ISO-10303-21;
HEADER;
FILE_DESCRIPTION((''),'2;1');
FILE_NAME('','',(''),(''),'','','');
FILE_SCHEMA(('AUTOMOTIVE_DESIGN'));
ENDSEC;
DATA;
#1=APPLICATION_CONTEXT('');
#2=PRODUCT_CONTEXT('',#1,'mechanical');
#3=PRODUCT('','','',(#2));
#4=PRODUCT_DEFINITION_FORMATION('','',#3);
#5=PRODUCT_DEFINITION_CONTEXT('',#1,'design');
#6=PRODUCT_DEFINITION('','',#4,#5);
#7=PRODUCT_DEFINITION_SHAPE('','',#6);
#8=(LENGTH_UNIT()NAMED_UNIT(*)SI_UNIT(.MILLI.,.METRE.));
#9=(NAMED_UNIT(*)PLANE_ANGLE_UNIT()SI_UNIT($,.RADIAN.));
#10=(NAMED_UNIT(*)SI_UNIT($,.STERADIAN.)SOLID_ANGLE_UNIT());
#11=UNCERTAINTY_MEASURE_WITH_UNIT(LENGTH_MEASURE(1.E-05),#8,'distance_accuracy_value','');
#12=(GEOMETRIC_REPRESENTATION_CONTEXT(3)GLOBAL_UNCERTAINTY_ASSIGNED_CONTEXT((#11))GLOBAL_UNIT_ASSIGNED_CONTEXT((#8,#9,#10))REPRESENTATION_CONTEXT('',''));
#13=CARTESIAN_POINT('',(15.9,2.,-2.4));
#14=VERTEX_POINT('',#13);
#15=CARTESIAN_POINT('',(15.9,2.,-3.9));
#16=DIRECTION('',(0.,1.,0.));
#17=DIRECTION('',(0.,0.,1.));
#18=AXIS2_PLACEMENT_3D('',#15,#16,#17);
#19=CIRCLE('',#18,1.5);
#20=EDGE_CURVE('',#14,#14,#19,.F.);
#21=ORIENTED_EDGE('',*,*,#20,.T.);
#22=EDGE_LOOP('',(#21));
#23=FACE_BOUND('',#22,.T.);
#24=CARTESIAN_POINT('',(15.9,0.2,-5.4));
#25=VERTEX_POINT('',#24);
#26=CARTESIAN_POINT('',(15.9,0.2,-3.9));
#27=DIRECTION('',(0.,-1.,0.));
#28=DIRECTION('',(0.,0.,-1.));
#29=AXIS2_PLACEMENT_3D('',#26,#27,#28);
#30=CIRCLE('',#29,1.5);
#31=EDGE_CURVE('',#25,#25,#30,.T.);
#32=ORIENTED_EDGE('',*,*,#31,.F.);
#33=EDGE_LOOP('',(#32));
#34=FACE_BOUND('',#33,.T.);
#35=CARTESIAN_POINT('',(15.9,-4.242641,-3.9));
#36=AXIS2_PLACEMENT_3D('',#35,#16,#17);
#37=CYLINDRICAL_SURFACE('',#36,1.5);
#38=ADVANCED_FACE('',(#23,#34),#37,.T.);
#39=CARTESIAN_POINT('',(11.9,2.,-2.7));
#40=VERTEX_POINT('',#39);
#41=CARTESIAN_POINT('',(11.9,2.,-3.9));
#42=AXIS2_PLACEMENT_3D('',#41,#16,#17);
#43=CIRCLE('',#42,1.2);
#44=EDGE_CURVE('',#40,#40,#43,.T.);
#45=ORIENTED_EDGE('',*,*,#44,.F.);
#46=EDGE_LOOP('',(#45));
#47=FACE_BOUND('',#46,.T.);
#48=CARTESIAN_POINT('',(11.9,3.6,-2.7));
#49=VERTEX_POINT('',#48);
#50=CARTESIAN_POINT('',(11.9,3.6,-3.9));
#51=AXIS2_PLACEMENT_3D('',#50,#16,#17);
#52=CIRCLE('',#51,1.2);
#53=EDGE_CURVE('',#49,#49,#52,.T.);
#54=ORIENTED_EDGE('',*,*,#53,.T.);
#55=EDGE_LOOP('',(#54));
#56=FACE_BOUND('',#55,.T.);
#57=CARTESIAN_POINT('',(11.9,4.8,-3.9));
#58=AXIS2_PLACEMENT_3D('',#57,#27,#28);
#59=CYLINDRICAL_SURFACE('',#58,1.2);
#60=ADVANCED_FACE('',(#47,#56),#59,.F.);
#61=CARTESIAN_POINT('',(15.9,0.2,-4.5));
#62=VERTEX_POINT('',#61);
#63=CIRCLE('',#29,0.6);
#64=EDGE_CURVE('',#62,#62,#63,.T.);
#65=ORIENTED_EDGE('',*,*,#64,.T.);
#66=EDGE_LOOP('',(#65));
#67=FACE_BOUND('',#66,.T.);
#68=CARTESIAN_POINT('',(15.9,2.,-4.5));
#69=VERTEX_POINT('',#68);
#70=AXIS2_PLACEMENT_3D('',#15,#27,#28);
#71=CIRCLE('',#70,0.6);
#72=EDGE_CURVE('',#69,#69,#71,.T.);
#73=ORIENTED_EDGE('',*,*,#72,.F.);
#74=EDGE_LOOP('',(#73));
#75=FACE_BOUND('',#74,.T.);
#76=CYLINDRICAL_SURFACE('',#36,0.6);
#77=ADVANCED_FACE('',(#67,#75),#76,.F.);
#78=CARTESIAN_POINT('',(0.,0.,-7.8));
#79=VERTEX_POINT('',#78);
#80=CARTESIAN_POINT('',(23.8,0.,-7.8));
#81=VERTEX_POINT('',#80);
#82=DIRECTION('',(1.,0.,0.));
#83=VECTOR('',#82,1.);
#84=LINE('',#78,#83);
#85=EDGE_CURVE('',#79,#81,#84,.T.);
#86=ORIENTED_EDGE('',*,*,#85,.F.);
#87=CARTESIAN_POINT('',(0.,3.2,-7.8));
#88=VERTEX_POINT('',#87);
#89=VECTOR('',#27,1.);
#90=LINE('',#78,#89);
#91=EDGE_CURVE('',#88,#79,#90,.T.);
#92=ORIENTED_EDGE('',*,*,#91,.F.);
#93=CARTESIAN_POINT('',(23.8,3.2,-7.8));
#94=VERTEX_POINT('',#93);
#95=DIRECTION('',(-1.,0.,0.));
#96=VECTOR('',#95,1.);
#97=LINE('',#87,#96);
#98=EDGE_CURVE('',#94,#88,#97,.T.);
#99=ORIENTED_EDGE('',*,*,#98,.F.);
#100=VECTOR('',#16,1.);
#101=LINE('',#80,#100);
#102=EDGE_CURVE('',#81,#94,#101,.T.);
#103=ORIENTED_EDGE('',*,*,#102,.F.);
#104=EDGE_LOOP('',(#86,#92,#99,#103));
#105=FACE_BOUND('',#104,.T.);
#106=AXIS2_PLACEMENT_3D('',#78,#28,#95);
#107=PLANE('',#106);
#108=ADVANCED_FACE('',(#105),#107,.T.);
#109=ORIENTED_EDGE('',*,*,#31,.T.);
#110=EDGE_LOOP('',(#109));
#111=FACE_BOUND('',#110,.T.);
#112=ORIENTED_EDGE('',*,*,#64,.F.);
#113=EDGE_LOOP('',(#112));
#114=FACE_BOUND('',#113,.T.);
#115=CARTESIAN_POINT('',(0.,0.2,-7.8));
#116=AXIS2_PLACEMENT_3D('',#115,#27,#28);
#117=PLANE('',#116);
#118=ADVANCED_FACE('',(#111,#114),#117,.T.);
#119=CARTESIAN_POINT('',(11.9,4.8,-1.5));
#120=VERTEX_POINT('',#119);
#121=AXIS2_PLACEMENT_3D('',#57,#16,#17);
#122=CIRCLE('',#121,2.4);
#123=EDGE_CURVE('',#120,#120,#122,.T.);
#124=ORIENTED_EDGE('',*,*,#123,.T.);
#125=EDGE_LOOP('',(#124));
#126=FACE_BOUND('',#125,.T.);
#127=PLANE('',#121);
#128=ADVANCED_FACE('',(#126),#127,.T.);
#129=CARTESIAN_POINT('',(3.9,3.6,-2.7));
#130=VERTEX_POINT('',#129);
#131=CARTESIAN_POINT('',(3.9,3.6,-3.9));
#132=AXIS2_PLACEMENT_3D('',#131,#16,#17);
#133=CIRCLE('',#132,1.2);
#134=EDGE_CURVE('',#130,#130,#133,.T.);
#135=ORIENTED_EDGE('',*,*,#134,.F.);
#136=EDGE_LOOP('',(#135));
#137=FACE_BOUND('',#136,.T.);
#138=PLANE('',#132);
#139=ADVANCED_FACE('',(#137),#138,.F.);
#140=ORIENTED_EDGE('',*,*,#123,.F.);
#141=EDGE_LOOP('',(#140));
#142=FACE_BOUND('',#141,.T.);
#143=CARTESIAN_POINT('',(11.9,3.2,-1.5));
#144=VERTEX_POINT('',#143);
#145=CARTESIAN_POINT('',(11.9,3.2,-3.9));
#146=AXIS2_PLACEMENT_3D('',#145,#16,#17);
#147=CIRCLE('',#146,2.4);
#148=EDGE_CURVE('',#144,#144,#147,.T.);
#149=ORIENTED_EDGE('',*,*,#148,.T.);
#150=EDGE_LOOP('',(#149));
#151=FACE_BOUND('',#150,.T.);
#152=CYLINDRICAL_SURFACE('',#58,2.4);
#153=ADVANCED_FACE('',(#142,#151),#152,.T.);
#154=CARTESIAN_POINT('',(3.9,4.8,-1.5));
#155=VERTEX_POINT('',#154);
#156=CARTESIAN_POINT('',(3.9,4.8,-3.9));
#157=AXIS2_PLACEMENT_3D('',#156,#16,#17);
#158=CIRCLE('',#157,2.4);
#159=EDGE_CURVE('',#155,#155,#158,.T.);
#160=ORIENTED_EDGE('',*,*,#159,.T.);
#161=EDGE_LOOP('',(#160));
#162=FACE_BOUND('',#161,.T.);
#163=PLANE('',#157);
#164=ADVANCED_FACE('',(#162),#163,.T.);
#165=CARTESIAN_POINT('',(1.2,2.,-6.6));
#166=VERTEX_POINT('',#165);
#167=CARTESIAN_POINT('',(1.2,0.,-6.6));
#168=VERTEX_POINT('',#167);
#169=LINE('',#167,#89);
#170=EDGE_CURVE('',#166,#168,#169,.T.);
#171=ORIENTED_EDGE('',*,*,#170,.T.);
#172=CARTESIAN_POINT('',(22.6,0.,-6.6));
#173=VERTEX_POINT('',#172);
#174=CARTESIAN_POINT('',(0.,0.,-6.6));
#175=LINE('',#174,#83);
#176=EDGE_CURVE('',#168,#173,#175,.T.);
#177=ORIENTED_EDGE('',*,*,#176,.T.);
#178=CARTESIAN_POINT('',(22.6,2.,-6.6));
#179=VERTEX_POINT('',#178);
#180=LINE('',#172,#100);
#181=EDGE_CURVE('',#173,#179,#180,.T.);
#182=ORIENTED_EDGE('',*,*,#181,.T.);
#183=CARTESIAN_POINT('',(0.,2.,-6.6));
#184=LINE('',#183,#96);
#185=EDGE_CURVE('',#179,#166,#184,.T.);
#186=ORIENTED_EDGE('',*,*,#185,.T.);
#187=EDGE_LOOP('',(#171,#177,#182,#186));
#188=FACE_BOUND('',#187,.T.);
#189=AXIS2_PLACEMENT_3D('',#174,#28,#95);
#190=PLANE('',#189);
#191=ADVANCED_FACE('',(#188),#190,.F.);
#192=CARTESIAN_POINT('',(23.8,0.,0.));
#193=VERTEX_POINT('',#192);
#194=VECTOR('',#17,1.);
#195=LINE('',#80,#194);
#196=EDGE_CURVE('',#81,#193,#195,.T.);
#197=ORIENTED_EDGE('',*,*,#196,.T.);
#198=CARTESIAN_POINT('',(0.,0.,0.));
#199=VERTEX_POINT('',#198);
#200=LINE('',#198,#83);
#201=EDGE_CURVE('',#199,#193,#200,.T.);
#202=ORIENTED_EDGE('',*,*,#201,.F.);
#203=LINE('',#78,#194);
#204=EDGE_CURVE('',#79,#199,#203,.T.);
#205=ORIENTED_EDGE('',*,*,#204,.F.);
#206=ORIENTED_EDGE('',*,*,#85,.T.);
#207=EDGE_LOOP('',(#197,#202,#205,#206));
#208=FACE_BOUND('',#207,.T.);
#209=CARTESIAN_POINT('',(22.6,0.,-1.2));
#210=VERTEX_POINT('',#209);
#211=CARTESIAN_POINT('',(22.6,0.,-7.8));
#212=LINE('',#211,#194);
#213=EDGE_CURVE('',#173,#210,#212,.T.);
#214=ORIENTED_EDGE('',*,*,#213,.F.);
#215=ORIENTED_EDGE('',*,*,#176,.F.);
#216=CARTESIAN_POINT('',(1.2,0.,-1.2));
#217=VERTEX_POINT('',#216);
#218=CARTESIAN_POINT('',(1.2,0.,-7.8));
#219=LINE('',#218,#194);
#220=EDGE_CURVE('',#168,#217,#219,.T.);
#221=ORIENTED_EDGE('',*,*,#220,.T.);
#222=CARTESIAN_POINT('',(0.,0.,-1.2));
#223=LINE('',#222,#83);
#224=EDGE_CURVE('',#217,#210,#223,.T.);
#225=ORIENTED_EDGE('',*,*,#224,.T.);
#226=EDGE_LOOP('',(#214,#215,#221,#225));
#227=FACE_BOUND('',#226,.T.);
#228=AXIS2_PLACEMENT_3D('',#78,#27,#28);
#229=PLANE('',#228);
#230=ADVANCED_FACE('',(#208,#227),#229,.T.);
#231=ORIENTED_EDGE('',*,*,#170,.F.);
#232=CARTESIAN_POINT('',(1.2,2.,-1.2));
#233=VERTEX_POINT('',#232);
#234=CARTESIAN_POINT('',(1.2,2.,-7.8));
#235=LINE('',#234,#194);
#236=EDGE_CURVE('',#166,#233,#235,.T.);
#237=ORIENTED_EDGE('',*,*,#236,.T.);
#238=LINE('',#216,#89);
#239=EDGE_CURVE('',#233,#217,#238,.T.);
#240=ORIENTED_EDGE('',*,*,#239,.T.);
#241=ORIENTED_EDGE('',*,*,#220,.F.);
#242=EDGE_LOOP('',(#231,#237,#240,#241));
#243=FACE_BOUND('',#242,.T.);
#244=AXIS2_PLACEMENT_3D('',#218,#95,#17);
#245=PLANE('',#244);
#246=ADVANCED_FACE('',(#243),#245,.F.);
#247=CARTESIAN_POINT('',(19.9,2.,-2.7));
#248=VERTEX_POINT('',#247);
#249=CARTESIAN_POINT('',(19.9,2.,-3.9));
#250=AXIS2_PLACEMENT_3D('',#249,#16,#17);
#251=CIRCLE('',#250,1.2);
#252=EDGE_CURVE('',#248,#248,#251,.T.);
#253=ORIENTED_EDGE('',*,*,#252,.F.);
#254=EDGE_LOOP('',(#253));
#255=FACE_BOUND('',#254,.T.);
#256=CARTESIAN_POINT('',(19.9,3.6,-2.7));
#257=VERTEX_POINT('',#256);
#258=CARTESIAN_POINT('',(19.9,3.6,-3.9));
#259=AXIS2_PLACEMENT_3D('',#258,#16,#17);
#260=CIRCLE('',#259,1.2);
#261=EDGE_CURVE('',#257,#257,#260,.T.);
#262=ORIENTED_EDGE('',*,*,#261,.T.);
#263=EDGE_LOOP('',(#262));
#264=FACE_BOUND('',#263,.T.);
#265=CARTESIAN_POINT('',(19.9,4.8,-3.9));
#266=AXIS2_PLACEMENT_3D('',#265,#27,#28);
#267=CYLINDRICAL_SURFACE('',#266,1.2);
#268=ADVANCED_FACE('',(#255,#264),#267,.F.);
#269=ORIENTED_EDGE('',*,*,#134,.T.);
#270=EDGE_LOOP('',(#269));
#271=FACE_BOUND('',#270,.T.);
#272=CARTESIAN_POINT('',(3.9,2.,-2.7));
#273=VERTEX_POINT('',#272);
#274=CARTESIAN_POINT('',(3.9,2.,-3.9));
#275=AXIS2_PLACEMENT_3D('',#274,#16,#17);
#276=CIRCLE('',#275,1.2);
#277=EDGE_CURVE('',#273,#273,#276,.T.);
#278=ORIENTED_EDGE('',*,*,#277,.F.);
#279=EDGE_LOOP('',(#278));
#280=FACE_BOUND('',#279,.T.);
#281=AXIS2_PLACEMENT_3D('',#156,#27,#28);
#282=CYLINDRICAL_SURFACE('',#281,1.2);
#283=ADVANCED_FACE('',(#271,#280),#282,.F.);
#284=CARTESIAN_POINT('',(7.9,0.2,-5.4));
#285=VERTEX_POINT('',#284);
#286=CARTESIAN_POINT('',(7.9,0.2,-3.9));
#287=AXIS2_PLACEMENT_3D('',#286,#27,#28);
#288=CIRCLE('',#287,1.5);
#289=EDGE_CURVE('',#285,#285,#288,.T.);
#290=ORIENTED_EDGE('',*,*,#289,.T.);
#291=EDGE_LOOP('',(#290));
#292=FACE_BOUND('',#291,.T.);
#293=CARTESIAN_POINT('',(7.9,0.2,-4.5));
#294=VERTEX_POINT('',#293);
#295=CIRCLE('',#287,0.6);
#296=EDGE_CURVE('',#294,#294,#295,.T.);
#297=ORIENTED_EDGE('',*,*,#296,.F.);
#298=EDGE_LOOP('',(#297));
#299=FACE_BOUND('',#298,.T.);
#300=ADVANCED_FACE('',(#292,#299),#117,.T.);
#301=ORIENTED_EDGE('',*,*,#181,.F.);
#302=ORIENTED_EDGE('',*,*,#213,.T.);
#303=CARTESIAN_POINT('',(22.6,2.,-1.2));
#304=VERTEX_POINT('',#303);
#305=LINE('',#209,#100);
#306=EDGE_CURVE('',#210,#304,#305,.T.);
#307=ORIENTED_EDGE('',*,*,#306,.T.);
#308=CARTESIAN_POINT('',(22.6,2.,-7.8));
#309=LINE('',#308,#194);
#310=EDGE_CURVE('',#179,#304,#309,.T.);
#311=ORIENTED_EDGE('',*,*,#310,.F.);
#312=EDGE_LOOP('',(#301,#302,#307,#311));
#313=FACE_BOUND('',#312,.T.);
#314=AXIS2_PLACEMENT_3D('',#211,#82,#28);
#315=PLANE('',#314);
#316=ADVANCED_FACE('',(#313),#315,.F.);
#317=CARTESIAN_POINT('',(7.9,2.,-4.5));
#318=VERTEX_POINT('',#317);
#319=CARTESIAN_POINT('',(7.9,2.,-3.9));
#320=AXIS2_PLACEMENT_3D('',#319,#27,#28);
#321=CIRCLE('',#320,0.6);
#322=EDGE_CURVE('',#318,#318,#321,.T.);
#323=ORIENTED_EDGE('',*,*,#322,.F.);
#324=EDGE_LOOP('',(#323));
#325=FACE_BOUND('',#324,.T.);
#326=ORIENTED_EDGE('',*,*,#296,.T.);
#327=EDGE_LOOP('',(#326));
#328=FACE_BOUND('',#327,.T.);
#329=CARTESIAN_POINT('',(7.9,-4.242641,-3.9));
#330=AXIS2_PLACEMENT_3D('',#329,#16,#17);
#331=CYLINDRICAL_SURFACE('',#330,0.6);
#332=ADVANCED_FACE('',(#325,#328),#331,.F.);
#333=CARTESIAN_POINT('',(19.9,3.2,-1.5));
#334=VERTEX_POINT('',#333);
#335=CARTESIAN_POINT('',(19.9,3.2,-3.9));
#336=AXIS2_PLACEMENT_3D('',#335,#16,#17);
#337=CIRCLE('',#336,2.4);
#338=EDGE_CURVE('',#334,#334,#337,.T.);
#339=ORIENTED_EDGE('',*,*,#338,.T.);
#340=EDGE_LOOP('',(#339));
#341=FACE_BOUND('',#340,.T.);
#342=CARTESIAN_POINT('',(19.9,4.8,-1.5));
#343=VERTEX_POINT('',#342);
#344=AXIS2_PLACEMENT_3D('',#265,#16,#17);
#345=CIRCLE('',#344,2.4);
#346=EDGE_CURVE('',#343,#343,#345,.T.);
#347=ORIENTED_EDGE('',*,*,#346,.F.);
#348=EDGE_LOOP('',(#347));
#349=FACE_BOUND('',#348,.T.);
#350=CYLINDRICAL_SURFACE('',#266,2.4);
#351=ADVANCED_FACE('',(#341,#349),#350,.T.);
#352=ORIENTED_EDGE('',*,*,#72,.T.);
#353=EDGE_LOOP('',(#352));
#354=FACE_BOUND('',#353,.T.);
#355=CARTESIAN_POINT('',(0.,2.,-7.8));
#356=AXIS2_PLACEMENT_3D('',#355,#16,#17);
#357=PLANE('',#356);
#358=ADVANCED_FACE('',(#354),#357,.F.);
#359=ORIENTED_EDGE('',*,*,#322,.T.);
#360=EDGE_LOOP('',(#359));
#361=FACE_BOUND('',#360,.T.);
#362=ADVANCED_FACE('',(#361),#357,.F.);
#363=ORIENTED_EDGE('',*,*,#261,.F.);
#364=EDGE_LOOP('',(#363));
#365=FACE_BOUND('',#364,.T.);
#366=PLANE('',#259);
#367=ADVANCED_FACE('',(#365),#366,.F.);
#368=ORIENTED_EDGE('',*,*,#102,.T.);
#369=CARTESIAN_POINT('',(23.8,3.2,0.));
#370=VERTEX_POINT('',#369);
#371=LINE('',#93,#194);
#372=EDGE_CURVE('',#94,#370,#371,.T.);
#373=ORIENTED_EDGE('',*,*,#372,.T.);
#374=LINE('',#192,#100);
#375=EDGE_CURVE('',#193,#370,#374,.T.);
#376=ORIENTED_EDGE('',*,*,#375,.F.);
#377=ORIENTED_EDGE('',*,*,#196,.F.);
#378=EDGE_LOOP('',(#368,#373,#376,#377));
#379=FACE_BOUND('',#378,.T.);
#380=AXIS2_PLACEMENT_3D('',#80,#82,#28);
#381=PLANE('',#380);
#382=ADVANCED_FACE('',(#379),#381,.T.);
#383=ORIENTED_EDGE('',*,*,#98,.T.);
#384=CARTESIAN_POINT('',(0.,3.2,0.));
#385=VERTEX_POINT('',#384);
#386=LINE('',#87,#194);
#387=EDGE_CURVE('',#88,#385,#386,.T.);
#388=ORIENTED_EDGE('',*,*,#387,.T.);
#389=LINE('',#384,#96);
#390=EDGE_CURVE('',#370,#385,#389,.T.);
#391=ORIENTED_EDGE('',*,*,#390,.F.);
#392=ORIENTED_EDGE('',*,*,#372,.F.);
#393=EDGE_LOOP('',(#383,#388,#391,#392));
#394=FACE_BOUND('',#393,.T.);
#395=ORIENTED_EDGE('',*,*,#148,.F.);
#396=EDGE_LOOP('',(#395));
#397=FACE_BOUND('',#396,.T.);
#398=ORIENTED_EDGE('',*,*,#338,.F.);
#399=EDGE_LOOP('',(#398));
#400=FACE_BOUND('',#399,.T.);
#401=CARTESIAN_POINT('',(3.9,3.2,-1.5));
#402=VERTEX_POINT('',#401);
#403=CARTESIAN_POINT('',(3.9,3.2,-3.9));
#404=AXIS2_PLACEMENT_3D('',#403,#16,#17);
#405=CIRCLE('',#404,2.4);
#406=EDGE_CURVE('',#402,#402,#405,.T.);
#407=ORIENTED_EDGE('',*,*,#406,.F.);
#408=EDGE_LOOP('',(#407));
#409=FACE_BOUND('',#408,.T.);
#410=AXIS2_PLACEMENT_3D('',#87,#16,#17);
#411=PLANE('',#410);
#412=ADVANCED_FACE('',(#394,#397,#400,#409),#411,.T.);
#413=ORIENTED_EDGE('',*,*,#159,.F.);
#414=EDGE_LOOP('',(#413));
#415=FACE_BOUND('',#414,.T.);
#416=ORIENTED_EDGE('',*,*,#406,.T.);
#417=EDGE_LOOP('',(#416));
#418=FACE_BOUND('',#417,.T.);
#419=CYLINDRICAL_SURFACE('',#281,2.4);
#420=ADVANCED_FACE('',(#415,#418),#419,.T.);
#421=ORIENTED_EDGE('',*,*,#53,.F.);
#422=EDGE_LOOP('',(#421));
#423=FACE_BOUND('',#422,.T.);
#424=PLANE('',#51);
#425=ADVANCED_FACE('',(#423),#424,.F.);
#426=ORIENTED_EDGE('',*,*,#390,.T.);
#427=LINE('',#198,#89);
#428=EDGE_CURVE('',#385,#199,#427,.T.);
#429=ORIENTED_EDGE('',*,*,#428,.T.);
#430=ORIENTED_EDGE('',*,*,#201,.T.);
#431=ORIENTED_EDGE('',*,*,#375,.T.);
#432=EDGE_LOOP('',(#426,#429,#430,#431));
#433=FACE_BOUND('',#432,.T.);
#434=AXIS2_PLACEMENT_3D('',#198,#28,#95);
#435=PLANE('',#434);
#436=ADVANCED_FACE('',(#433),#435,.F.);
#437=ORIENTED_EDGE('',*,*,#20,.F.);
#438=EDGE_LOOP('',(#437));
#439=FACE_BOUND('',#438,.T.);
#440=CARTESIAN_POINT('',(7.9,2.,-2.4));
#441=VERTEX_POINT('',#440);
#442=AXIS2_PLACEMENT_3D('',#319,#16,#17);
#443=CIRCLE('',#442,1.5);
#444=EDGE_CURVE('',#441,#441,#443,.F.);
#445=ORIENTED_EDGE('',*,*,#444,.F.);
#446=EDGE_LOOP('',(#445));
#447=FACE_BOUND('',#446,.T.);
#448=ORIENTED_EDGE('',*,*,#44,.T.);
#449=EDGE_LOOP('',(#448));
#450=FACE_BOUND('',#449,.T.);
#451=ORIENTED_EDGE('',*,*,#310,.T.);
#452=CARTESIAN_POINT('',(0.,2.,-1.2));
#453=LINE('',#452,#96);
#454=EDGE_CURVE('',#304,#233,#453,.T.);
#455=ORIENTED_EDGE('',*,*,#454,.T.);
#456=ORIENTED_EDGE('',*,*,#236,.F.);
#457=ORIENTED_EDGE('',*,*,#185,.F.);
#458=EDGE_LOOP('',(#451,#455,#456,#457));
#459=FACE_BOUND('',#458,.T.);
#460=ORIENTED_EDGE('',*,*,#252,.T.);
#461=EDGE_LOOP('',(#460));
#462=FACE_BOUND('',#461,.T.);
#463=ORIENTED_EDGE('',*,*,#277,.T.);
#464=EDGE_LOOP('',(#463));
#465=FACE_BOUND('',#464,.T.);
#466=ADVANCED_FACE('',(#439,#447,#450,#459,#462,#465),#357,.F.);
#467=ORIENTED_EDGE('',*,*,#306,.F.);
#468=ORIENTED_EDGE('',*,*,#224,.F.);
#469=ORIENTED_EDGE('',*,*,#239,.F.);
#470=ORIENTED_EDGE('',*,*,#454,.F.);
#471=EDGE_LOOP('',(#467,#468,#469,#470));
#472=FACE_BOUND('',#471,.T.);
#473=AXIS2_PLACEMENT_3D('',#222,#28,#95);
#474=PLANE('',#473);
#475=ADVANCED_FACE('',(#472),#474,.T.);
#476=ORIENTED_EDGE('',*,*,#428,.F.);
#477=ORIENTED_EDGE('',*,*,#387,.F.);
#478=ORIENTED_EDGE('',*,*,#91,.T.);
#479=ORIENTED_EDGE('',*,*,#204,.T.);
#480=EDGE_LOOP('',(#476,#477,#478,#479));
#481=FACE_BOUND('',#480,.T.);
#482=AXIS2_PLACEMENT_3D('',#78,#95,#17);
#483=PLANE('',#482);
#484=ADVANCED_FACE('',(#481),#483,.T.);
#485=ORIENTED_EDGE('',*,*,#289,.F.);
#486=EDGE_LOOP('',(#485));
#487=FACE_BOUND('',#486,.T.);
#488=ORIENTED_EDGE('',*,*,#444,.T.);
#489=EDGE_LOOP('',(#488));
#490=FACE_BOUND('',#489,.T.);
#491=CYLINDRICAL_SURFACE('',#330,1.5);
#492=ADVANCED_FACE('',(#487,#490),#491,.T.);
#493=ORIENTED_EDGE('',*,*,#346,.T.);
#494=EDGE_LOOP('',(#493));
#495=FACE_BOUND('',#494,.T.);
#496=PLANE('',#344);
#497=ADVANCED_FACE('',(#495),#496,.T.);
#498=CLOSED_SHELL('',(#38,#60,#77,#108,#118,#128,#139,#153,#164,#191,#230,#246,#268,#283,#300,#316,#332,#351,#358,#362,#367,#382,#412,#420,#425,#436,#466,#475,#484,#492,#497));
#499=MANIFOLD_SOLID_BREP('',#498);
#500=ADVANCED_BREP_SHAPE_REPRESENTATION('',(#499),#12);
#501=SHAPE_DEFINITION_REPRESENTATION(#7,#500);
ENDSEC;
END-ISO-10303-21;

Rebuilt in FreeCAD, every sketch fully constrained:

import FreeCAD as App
import Part
import Sketcher

V = App.Vector


def faces_at(feature, points):
    """Names of the faces that lie closest to the given points."""
    faces = feature.Shape.Faces
    near = lambda p: min(range(len(faces)), key=lambda i: faces[i].distToShape(Part.Vertex(*p))[0])
    return sorted({f"Face{near(p) + 1}" for p in points})


def add_polygon(sketch, points):
    """Adds a closed chain of lines whose ends are joined by coincident constraints."""
    first, n = sketch.GeometryCount, len(points)
    for a, b in zip(points, points[1:] + points[:1]):
        sketch.addGeometry(Part.LineSegment(App.Vector(*a, 0), App.Vector(*b, 0)), False)
    for i in range(n):
        sketch.addConstraint(Sketcher.Constraint("Coincident", first + i, 2, first + (i + 1) % n, 1))

doc = App.newDocument("Part")
body = doc.addObject("PartDesign::Body", "Body")

sketch1 = body.newObject("Sketcher::SketchObject", "Sketch")
sketch1.AttachmentSupport = (doc.getObject("XY_Plane"), [""])
sketch1.MapMode = "FlatFace"
add_polygon(sketch1, [(0, 3.2), (0, 0), (23.8, 0), (23.8, 3.2)])
sketch1.addConstraint([
    Sketcher.Constraint("Vertical", 0),
    Sketcher.Constraint("Horizontal", 1),
    Sketcher.Constraint("Vertical", 2),
    Sketcher.Constraint("Horizontal", 3),
    Sketcher.Constraint("Coincident", 0, 2, -1, 1),
    Sketcher.Constraint("DistanceX", 1, 1, 1, 2, 23.8),
    Sketcher.Constraint("DistanceY", 0, 2, 0, 1, 3.2),
])
pad1 = body.newObject("PartDesign::Pad", "Pad")
pad1.Profile = sketch1
pad1.Length = 7.8
pad1.Reversed = True

sketch2 = body.newObject("Sketcher::SketchObject", "Sketch001")
sketch2.AttachmentSupport = (doc.getObject("XZ_Plane"), [""])
sketch2.MapMode = "FlatFace"
sketch2.AttachmentOffset = App.Placement(V(0, 0, -3.2), App.Rotation())
sketch2.addGeometry(Part.Circle(V(3.9, -3.9, 0), V(0, 0, 1), 2.4), False)
sketch2.addConstraint([
    Sketcher.Constraint("Diameter", 0, 4.8),
    Sketcher.Constraint("DistanceX", -1, 1, 0, 3, 3.9),
    Sketcher.Constraint("DistanceY", 0, 3, -1, 1, 3.9),
])
pad2 = body.newObject("PartDesign::Pad", "Pad001")
pad2.Profile = sketch2
pad2.Length = 1.6
pad2.Reversed = True
doc.recompute()

linearpattern = body.newObject("PartDesign::LinearPattern", "LinearPattern")
linearpattern.Originals = [pad2]
linearpattern.Direction = (doc.getObject("X_Axis"), [""])
linearpattern.Mode = "offset"
linearpattern.Offset = 8
linearpattern.Occurrences = 3
body.Tip = linearpattern
doc.recompute()

thickness = body.newObject("PartDesign::Thickness", "Thickness")
thickness.Base = (linearpattern, faces_at(linearpattern, [(11.9, 0, -3.9)]))
thickness.Value = 1.2
thickness.Reversed = True
thickness.Join = "Intersection"

sketch3 = body.newObject("Sketcher::SketchObject", "Sketch002")
sketch3.AttachmentSupport = (doc.getObject("XZ_Plane"), [""])
sketch3.MapMode = "FlatFace"
sketch3.AttachmentOffset = App.Placement(V(0, 0, -2), App.Rotation())
sketch3.addGeometry([
    Part.Circle(V(7.9, -3.9, 0), V(0, 0, 1), 1.5),
    Part.Circle(V(7.9, -3.9, 0), V(0, 0, 1), 0.6),
], False)
sketch3.addConstraint([
    Sketcher.Constraint("Coincident", 1, 3, 0, 3),
    Sketcher.Constraint("Diameter", 0, 3.0),
    Sketcher.Constraint("Diameter", 1, 1.2),
    Sketcher.Constraint("DistanceX", -1, 1, 0, 3, 7.9),
    Sketcher.Constraint("DistanceY", 0, 3, -1, 1, 3.9),
])
pad3 = body.newObject("PartDesign::Pad", "Pad002")
pad3.Profile = sketch3
pad3.Length = 1.8
doc.recompute()

linearpattern2 = body.newObject("PartDesign::LinearPattern", "LinearPattern001")
linearpattern2.Originals = [pad3]
linearpattern2.Direction = (doc.getObject("X_Axis"), [""])
linearpattern2.Mode = "offset"
linearpattern2.Offset = 8
linearpattern2.Occurrences = 2
body.Tip = linearpattern2

doc.recompute()
